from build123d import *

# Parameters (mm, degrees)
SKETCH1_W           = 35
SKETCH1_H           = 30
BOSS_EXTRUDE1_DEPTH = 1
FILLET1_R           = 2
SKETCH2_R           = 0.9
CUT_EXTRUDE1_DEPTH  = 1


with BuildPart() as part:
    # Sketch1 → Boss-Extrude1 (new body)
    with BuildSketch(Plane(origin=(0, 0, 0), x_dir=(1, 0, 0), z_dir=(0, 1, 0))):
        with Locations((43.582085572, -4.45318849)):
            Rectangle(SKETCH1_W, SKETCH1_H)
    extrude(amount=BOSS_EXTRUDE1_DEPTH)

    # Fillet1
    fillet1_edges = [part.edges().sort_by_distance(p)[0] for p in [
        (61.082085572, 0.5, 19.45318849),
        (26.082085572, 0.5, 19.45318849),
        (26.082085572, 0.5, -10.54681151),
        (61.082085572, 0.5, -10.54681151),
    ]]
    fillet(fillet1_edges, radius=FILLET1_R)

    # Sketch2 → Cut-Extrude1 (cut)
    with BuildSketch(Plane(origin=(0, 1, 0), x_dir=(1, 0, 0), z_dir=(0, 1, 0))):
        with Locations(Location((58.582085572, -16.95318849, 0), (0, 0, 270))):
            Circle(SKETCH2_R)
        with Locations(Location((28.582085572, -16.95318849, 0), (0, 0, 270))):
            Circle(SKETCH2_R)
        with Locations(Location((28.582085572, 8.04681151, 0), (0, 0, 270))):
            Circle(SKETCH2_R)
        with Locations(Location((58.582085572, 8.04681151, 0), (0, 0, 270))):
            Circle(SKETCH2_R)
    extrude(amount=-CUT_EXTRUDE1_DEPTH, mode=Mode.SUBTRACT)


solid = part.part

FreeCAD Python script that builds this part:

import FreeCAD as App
import Part
import Sketcher
from FreeCAD import Vector
Q = App.Units.Quantity


def edges_at(feature, points):
    """Names of the edges that pass closest to the given points."""
    edges = feature.Shape.Edges
    near = lambda p: min(range(len(edges)), key=lambda i: edges[i].distToShape(Part.Vertex(*p))[0])
    return sorted({f"Edge{near(p) + 1}" for p in points})

doc = App.newDocument("Part")
params = doc.addObject("Spreadsheet::Sheet", "Params")
for row, (alias, value) in enumerate([
    ("sketch1_width", "35 mm"),
    ("sketch1_height", "30 mm"),
    ("pad1_length", "1 mm"),
    ("fillet_radius", "2 mm"),
    ("sketch2_diameter", "1.8 mm"),
    ("pocket1_length", "1 mm"),
], start=1):
    params.set(f"A{row}", alias)
    params.set(f"B{row}", "=" + value)
    params.setAlias(f"B{row}", alias)

body = doc.addObject("PartDesign::Body", "Body")

# Sketch on XZ plane
sketch1 = doc.addObject("Sketcher::SketchObject", "Sketch")
body.addObject(sketch1)
sketch1.AttachmentSupport = (doc.XZ_Plane, [""])
sketch1.MapMode = "FlatFace"
sketch1.addGeometry(Part.LineSegment(Vector(26, -11, 0), Vector(26, 19, 0)), False)
sketch1.addGeometry(Part.LineSegment(Vector(26, 19, 0), Vector(61, 19, 0)), False)
sketch1.addGeometry(Part.LineSegment(Vector(61, 19, 0), Vector(61, -11, 0)), False)
sketch1.addGeometry(Part.LineSegment(Vector(61, -11, 0), Vector(26, -11, 0)), False)
sketch1.addConstraint(Sketcher.Constraint("Coincident", 0, 2, 1, 1))
sketch1.addConstraint(Sketcher.Constraint("Coincident", 1, 2, 2, 1))
sketch1.addConstraint(Sketcher.Constraint("Coincident", 2, 2, 3, 1))
sketch1.addConstraint(Sketcher.Constraint("Coincident", 3, 2, 0, 1))
sketch1.addConstraint(Sketcher.Constraint("Vertical", 0))
sketch1.addConstraint(Sketcher.Constraint("Horizontal", 1))
sketch1.addConstraint(Sketcher.Constraint("Vertical", 2))
sketch1.addConstraint(Sketcher.Constraint("Horizontal", 3))
sketch1.addConstraint(Sketcher.Constraint("DistanceX", 1, 1, 1, 2, Q("35 mm")))
sketch1.addConstraint(Sketcher.Constraint("DistanceY", 0, 1, 0, 2, Q("30 mm")))
sketch1.addConstraint(Sketcher.Constraint("DistanceY", -1, 1, 0, 2, Q("19.453188 mm")))
sketch1.addConstraint(Sketcher.Constraint("DistanceX", -1, 1, 0, 2, Q("26.082086 mm")))
sketch1.setExpression("Constraints[8]", "Params.sketch1_width")
sketch1.setExpression("Constraints[9]", "Params.sketch1_height")
pad1 = doc.addObject("PartDesign::Pad", "Pad")
body.addObject(pad1)
pad1.Profile = sketch1
pad1.setExpression("Length", "Params.pad1_length")
pad1.Reversed = True
doc.recompute()

fillet = doc.addObject("PartDesign::Fillet", "Fillet")
body.addObject(fillet)
fillet.Base = (pad1, edges_at(pad1, [
    (61.082, 0.5, 19.453),
    (26.082, 0.5, 19.453),
    (26.082, 0.5, -10.547),
    (61.082, 0.5, -10.547),
]))
fillet.setExpression("Radius", "Params.fillet_radius")

# Sketch on XZ plane
sketch2 = doc.addObject("Sketcher::SketchObject", "Sketch001")
body.addObject(sketch2)
sketch2.AttachmentSupport = (doc.XZ_Plane, [""])
sketch2.MapMode = "FlatFace"
sketch2.AttachmentOffset = App.Placement(Vector(0, 0, -1), App.Rotation())
sketch2.addGeometry(Part.Circle(Vector(58.6, 17, 0), Vector(0, 0, 1), 0.9), False)
sketch2.addGeometry(Part.Circle(Vector(28.6, 17, 0), Vector(0, 0, 1), 0.9), False)
sketch2.addGeometry(Part.Circle(Vector(28.6, -8, 0), Vector(0, 0, 1), 0.9), False)
sketch2.addGeometry(Part.Circle(Vector(58.6, -8, 0), Vector(0, 0, 1), 0.9), False)
sketch2.addConstraint(Sketcher.Constraint("Equal", 0, 1))
sketch2.addConstraint(Sketcher.Constraint("Equal", 1, 2))
sketch2.addConstraint(Sketcher.Constraint("Equal", 2, 3))
sketch2.addConstraint(Sketcher.Constraint("Horizontal", 0, 3, 1, 3))
sketch2.addConstraint(Sketcher.Constraint("Horizontal", 2, 3, 3, 3))
sketch2.addConstraint(Sketcher.Constraint("Vertical", 1, 3, 2, 3))
sketch2.addConstraint(Sketcher.Constraint("Vertical", 0, 3, 3, 3))
sketch2.addConstraint(Sketcher.Constraint("Diameter", 0, Q("1.8 mm")))
sketch2.addConstraint(Sketcher.Constraint("DistanceX", 1, 3, 0, 3, Q("30 mm")))
sketch2.addConstraint(Sketcher.Constraint("DistanceY", 2, 3, 1, 3, Q("25 mm")))
sketch2.addConstraint(Sketcher.Constraint("DistanceY", -1, 1, 0, 3, Q("16.953188 mm")))
sketch2.addConstraint(Sketcher.Constraint("DistanceX", -1, 1, 0, 3, Q("58.582086 mm")))
sketch2.setExpression("Constraints[7]", "Params.sketch2_diameter")
pocket1 = doc.addObject("PartDesign::Pocket", "Pocket")
body.addObject(pocket1)
pocket1.Profile = sketch2
pocket1.setExpression("Length", "Params.pocket1_length")
pocket1.Reversed = True

doc.recompute()
